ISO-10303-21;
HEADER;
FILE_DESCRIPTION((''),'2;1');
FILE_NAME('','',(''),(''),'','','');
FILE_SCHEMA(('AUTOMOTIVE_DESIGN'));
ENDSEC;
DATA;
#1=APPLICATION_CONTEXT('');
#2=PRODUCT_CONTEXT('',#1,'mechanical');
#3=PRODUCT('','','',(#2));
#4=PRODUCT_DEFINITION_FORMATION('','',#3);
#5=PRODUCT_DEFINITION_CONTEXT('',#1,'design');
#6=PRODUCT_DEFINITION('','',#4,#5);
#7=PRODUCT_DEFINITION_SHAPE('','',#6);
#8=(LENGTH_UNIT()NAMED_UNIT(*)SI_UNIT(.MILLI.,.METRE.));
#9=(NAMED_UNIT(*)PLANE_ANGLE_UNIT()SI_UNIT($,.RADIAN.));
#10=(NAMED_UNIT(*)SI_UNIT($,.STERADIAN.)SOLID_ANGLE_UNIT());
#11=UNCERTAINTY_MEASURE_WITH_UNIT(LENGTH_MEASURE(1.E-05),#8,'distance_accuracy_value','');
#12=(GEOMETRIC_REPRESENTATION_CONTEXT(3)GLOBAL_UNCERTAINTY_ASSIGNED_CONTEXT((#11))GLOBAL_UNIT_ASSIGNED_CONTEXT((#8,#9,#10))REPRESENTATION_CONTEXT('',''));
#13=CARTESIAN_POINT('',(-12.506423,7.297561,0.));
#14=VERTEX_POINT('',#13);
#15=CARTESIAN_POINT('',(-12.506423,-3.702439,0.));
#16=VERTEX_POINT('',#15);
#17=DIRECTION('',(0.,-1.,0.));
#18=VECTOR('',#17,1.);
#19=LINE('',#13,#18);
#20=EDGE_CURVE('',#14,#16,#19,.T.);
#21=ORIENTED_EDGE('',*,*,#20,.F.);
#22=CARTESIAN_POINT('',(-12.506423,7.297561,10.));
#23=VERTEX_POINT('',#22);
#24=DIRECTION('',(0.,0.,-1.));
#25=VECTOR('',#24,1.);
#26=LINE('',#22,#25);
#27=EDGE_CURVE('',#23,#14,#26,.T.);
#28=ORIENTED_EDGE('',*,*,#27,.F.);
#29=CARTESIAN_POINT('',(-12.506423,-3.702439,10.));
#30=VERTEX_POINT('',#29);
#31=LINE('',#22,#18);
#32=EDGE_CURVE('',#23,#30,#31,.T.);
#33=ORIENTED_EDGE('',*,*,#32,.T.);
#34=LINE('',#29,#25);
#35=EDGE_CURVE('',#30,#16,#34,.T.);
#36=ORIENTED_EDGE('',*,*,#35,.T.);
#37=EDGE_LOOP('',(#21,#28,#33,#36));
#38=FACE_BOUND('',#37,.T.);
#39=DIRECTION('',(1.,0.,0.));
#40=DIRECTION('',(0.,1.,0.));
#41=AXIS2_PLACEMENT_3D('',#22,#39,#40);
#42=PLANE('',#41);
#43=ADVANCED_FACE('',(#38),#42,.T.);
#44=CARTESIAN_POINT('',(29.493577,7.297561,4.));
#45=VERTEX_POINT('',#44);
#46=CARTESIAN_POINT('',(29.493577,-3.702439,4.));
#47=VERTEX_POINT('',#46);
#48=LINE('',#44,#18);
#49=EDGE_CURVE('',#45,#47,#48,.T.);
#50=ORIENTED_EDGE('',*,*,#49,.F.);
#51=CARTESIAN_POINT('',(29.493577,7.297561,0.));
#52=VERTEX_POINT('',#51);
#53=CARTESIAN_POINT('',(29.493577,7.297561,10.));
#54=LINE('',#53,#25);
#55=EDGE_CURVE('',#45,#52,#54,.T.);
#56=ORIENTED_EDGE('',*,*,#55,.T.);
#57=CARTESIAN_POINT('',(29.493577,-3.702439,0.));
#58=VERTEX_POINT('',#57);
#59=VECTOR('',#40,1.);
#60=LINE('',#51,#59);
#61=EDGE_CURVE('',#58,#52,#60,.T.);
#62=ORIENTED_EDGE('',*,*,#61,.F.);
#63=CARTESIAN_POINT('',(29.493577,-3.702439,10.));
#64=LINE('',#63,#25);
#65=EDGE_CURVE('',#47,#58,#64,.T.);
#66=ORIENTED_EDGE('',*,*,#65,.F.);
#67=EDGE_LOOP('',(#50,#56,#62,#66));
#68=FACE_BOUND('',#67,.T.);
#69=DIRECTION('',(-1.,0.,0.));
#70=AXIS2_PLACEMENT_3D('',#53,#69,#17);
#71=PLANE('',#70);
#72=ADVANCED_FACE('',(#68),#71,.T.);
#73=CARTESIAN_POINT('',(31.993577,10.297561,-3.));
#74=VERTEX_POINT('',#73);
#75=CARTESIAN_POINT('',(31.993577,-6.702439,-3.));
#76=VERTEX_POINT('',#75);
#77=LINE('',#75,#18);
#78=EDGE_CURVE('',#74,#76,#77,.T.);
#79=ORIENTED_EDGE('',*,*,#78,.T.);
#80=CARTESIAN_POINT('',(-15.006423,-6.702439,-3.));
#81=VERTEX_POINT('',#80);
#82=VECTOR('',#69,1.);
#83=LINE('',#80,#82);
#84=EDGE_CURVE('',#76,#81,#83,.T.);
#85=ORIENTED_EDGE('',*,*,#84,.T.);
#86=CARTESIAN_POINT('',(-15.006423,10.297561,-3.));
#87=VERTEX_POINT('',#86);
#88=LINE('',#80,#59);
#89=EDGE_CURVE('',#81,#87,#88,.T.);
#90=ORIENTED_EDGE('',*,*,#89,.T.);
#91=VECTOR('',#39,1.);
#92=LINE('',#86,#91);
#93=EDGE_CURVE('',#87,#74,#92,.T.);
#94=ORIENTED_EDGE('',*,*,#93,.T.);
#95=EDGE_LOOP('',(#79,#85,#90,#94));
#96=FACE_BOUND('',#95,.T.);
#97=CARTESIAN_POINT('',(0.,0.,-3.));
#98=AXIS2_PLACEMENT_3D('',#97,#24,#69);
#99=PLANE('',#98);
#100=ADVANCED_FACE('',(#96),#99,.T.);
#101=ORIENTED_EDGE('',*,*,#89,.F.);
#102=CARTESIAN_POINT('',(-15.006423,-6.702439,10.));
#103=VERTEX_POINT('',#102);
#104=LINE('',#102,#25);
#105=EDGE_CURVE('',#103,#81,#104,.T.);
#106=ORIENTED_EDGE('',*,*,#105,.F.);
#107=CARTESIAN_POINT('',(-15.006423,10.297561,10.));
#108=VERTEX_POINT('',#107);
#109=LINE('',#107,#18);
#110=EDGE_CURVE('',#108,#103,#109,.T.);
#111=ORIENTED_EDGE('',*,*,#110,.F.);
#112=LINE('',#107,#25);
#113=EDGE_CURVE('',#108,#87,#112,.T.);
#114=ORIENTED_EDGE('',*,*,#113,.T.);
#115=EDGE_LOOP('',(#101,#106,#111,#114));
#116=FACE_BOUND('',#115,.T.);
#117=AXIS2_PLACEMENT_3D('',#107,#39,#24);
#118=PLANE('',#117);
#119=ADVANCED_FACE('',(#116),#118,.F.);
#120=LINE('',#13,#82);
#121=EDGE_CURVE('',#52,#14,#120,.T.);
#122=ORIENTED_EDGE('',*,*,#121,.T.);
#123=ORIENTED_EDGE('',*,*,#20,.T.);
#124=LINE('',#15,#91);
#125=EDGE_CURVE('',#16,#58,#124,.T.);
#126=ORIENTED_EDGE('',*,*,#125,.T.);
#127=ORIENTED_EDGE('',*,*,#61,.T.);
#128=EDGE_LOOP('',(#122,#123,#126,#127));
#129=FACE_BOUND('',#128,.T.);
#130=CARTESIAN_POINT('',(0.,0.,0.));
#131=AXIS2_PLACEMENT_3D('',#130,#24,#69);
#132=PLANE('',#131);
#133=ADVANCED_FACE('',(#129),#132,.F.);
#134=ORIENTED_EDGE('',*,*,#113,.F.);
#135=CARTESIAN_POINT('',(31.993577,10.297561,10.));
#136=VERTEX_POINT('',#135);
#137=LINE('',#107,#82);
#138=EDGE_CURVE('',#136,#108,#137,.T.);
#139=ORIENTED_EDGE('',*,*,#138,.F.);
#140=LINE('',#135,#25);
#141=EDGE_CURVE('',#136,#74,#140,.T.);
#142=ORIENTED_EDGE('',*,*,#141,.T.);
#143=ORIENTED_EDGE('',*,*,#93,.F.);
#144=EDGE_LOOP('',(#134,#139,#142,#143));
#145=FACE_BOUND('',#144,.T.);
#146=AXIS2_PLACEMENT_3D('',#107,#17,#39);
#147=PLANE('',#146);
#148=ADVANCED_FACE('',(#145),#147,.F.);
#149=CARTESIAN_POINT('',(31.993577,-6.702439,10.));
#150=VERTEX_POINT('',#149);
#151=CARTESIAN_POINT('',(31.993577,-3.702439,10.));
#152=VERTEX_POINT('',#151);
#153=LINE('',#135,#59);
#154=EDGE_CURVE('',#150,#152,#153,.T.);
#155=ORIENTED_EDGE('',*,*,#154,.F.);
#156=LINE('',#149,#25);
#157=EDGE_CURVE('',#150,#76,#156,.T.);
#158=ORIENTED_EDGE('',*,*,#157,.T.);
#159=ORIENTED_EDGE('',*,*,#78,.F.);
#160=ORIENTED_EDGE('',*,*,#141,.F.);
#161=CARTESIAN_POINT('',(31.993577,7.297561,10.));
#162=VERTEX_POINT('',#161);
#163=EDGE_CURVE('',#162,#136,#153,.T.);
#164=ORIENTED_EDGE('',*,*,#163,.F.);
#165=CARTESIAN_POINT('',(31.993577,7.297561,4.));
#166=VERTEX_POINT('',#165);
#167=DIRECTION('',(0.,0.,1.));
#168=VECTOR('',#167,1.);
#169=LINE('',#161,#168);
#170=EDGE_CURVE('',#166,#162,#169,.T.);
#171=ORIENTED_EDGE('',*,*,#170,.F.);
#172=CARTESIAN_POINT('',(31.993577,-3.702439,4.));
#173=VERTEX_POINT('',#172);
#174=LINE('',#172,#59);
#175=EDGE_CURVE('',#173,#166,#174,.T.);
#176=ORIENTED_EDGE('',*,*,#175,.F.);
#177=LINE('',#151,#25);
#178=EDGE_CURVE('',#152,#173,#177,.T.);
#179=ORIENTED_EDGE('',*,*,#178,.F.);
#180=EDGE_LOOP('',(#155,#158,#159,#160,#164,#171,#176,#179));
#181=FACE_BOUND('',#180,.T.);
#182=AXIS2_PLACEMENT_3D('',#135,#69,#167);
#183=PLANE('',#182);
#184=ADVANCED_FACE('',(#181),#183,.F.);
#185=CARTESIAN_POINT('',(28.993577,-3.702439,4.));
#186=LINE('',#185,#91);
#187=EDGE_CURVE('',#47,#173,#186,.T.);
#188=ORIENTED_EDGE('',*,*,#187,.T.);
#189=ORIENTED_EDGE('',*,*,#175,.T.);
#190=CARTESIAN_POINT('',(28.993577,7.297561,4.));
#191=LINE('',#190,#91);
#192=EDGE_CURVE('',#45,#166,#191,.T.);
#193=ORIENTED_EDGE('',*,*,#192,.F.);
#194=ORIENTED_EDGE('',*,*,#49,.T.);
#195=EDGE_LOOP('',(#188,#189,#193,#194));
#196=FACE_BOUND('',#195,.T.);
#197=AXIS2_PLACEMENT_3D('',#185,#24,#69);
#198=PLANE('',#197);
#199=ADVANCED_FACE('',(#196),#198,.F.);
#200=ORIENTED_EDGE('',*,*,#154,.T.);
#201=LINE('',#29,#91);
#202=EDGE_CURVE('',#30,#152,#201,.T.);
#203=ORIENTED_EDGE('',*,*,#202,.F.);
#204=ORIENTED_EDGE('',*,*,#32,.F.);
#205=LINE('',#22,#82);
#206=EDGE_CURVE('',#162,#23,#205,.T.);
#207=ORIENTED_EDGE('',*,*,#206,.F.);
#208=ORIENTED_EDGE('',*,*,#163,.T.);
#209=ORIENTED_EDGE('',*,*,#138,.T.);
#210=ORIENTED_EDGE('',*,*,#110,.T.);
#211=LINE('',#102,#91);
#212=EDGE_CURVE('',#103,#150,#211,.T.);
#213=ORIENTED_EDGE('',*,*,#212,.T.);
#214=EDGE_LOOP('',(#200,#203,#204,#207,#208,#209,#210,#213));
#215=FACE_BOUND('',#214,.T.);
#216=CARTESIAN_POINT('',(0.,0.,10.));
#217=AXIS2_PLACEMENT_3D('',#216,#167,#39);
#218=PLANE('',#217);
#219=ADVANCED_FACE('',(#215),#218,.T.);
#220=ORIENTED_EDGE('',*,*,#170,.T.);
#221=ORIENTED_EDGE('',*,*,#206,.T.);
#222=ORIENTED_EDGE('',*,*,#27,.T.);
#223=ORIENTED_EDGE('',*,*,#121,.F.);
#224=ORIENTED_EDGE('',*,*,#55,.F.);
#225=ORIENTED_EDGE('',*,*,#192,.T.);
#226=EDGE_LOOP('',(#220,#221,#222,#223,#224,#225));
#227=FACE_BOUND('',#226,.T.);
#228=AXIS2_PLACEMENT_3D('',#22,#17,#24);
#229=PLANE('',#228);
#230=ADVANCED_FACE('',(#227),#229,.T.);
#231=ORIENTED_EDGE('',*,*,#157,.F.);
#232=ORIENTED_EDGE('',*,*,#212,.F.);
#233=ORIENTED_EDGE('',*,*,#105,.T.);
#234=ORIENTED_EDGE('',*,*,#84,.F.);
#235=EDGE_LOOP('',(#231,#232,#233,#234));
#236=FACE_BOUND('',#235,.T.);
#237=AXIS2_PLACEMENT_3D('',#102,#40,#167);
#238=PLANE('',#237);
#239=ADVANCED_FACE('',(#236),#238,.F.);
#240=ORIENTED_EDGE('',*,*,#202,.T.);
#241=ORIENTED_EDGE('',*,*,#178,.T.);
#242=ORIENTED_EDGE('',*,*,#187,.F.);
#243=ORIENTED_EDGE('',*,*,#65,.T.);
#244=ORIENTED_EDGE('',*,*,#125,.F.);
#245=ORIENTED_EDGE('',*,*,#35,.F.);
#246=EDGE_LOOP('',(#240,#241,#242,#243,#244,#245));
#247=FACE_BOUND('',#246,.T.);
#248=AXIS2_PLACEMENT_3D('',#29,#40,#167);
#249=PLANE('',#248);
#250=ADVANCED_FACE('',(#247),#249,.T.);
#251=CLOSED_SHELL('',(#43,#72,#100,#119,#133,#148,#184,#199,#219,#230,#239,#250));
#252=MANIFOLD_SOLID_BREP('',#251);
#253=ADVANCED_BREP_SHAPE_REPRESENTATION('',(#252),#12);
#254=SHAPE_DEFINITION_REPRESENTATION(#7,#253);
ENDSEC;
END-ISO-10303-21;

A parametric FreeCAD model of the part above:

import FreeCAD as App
import Part
import Sketcher

doc = App.newDocument("Part")
body = doc.addObject("PartDesign::Body", "Body")

# Sketch on XY plane
sketch1 = body.newObject("Sketcher::SketchObject", "Sketch")
sketch1.AttachmentSupport = (doc.getObject("XY_Plane"), [""])
sketch1.MapMode = "FlatFace"
sketch1.addGeometry([
    Part.LineSegment(App.Vector(-15.006423, 10.297561, 0), App.Vector(-15.006423, -6.702439, 0)),  # 0
    Part.LineSegment(App.Vector(-15.006423, -6.702439, 0), App.Vector(31.993577, -6.702439, 0)),  # 1
    Part.LineSegment(App.Vector(31.993577, -6.702439, 0), App.Vector(31.993577, 10.297561, 0)),  # 2
    Part.LineSegment(App.Vector(31.993577, 10.297561, 0), App.Vector(-15.006423, 10.297561, 0)),  # 3
    Part.LineSegment(App.Vector(29.493577, -3.702439, 0), App.Vector(-12.506423, -3.702439, 0)),  # 4
    Part.LineSegment(App.Vector(-12.506423, -3.702439, 0), App.Vector(-12.506423, 7.297561, 0)),  # 5
    Part.LineSegment(App.Vector(-12.506423, 7.297561, 0), App.Vector(29.493577, 7.297561, 0)),  # 6
    Part.LineSegment(App.Vector(29.493577, 7.297561, 0), App.Vector(29.493577, -3.702439, 0)),  # 7
], False)
sketch1.addConstraint([
    Sketcher.Constraint("Coincident", 0, 2, 1, 1),
    Sketcher.Constraint("Coincident", 1, 2, 2, 1),
    Sketcher.Constraint("Coincident", 2, 2, 3, 1),
    Sketcher.Constraint("Coincident", 3, 2, 0, 1),
    Sketcher.Constraint("Coincident", 4, 2, 5, 1),
    Sketcher.Constraint("Coincident", 5, 2, 6, 1),
    Sketcher.Constraint("Coincident", 6, 2, 7, 1),
    Sketcher.Constraint("Coincident", 7, 2, 4, 1),
    Sketcher.Constraint("Vertical", 0),
    Sketcher.Constraint("Horizontal", 1),
    Sketcher.Constraint("Vertical", 2),
    Sketcher.Constraint("Horizontal", 3),
    Sketcher.Constraint("Horizontal", 4),
    Sketcher.Constraint("Vertical", 5),
    Sketcher.Constraint("Horizontal", 6),
    Sketcher.Constraint("Vertical", 7),
    Sketcher.Constraint("DistanceX", 1, 1, 1, 2, 47.0),
    Sketcher.Constraint("DistanceX", 4, 2, 4, 1, 42.0),
    Sketcher.Constraint("DistanceY", 0, 2, 0, 1, 17.0),
    Sketcher.Constraint("DistanceY", 5, 1, 5, 2, 11.0),
    Sketcher.Constraint("DistanceY", 0, 2, 4, 2, 3.0),
    Sketcher.Constraint("DistanceX", 0, 2, 4, 2, 2.5),
    Sketcher.Constraint("DistanceY", 0, 2, -1, 1, 6.702439),
    Sketcher.Constraint("DistanceX", 0, 2, -1, 1, 15.006423),
])
pad1 = body.newObject("PartDesign::Pad", "Pad")
pad1.Profile = sketch1
pad1.Length = 10

# Sketch on XY plane
sketch2 = body.newObject("Sketcher::SketchObject", "Sketch001")
sketch2.AttachmentSupport = (doc.getObject("XY_Plane"), [""])
sketch2.MapMode = "FlatFace"
sketch2.addGeometry([
    Part.LineSegment(App.Vector(31.993577, 10.297561, 0), App.Vector(31.993577, -6.702439, 0)),
    Part.LineSegment(App.Vector(31.993577, -6.702439, 0), App.Vector(-15.006423, -6.702439, 0)),
    Part.LineSegment(App.Vector(-15.006423, -6.702439, 0), App.Vector(-15.006423, 10.297561, 0)),
    Part.LineSegment(App.Vector(-15.006423, 10.297561, 0), App.Vector(31.993577, 10.297561, 0)),
], False)
sketch2.addConstraint([
    Sketcher.Constraint("Coincident", 0, 2, 1, 1),
    Sketcher.Constraint("Coincident", 1, 2, 2, 1),
    Sketcher.Constraint("Coincident", 2, 2, 3, 1),
    Sketcher.Constraint("Coincident", 3, 2, 0, 1),
    Sketcher.Constraint("Vertical", 0),
    Sketcher.Constraint("Horizontal", 1),
    Sketcher.Constraint("Vertical", 2),
    Sketcher.Constraint("Horizontal", 3),
    Sketcher.Constraint("DistanceX", 1, 2, 1, 1, 47.0),
    Sketcher.Constraint("DistanceY", 0, 2, 0, 1, 17.0),
    Sketcher.Constraint("DistanceY", 0, 2, -1, 1, 6.702439),
    Sketcher.Constraint("DistanceX", -1, 1, 0, 2, 31.993577),
])
pad2 = body.newObject("PartDesign::Pad", "Pad001")
pad2.Profile = sketch2
pad2.Length = 3
pad2.Reversed = True

# Sketch on YZ plane
sketch3 = body.newObject("Sketcher::SketchObject", "Sketch002")
sketch3.AttachmentSupport = (doc.getObject("YZ_Plane"), [""])
sketch3.MapMode = "FlatFace"
sketch3.AttachmentOffset = App.Placement(App.Vector(0, 0, 31.993577), App.Rotation())
sketch3.addGeometry([
    Part.LineSegment(App.Vector(7.297561, 10, 0), App.Vector(-3.702439, 10, 0)),
    Part.LineSegment(App.Vector(-3.702439, 10, 0), App.Vector(-3.702439, 4, 0)),
    Part.LineSegment(App.Vector(-3.702439, 4, 0), App.Vector(7.297561, 4, 0)),
    Part.LineSegment(App.Vector(7.297561, 4, 0), App.Vector(7.297561, 10, 0)),
], False)
sketch3.addConstraint([
    Sketcher.Constraint("Coincident", 0, 2, 1, 1),
    Sketcher.Constraint("Coincident", 1, 2, 2, 1),
    Sketcher.Constraint("Coincident", 2, 2, 3, 1),
    Sketcher.Constraint("Coincident", 3, 2, 0, 1),
    Sketcher.Constraint("Horizontal", 0),
    Sketcher.Constraint("Vertical", 1),
    Sketcher.Constraint("Horizontal", 2),
    Sketcher.Constraint("Vertical", 3),
    Sketcher.Constraint("DistanceX", 0, 2, 0, 1, 11.0),
    Sketcher.Constraint("DistanceY", 1, 2, 1, 1, 6.0),
    Sketcher.Constraint("DistanceY", -1, 1, 0, 2, 10.0),
    Sketcher.Constraint("DistanceX", 0, 2, -1, 1, 3.702439),
])
pocket1 = body.newObject("PartDesign::Pocket", "Pocket")
pocket1.Profile = sketch3
pocket1.Length = 3

doc.recompute()
